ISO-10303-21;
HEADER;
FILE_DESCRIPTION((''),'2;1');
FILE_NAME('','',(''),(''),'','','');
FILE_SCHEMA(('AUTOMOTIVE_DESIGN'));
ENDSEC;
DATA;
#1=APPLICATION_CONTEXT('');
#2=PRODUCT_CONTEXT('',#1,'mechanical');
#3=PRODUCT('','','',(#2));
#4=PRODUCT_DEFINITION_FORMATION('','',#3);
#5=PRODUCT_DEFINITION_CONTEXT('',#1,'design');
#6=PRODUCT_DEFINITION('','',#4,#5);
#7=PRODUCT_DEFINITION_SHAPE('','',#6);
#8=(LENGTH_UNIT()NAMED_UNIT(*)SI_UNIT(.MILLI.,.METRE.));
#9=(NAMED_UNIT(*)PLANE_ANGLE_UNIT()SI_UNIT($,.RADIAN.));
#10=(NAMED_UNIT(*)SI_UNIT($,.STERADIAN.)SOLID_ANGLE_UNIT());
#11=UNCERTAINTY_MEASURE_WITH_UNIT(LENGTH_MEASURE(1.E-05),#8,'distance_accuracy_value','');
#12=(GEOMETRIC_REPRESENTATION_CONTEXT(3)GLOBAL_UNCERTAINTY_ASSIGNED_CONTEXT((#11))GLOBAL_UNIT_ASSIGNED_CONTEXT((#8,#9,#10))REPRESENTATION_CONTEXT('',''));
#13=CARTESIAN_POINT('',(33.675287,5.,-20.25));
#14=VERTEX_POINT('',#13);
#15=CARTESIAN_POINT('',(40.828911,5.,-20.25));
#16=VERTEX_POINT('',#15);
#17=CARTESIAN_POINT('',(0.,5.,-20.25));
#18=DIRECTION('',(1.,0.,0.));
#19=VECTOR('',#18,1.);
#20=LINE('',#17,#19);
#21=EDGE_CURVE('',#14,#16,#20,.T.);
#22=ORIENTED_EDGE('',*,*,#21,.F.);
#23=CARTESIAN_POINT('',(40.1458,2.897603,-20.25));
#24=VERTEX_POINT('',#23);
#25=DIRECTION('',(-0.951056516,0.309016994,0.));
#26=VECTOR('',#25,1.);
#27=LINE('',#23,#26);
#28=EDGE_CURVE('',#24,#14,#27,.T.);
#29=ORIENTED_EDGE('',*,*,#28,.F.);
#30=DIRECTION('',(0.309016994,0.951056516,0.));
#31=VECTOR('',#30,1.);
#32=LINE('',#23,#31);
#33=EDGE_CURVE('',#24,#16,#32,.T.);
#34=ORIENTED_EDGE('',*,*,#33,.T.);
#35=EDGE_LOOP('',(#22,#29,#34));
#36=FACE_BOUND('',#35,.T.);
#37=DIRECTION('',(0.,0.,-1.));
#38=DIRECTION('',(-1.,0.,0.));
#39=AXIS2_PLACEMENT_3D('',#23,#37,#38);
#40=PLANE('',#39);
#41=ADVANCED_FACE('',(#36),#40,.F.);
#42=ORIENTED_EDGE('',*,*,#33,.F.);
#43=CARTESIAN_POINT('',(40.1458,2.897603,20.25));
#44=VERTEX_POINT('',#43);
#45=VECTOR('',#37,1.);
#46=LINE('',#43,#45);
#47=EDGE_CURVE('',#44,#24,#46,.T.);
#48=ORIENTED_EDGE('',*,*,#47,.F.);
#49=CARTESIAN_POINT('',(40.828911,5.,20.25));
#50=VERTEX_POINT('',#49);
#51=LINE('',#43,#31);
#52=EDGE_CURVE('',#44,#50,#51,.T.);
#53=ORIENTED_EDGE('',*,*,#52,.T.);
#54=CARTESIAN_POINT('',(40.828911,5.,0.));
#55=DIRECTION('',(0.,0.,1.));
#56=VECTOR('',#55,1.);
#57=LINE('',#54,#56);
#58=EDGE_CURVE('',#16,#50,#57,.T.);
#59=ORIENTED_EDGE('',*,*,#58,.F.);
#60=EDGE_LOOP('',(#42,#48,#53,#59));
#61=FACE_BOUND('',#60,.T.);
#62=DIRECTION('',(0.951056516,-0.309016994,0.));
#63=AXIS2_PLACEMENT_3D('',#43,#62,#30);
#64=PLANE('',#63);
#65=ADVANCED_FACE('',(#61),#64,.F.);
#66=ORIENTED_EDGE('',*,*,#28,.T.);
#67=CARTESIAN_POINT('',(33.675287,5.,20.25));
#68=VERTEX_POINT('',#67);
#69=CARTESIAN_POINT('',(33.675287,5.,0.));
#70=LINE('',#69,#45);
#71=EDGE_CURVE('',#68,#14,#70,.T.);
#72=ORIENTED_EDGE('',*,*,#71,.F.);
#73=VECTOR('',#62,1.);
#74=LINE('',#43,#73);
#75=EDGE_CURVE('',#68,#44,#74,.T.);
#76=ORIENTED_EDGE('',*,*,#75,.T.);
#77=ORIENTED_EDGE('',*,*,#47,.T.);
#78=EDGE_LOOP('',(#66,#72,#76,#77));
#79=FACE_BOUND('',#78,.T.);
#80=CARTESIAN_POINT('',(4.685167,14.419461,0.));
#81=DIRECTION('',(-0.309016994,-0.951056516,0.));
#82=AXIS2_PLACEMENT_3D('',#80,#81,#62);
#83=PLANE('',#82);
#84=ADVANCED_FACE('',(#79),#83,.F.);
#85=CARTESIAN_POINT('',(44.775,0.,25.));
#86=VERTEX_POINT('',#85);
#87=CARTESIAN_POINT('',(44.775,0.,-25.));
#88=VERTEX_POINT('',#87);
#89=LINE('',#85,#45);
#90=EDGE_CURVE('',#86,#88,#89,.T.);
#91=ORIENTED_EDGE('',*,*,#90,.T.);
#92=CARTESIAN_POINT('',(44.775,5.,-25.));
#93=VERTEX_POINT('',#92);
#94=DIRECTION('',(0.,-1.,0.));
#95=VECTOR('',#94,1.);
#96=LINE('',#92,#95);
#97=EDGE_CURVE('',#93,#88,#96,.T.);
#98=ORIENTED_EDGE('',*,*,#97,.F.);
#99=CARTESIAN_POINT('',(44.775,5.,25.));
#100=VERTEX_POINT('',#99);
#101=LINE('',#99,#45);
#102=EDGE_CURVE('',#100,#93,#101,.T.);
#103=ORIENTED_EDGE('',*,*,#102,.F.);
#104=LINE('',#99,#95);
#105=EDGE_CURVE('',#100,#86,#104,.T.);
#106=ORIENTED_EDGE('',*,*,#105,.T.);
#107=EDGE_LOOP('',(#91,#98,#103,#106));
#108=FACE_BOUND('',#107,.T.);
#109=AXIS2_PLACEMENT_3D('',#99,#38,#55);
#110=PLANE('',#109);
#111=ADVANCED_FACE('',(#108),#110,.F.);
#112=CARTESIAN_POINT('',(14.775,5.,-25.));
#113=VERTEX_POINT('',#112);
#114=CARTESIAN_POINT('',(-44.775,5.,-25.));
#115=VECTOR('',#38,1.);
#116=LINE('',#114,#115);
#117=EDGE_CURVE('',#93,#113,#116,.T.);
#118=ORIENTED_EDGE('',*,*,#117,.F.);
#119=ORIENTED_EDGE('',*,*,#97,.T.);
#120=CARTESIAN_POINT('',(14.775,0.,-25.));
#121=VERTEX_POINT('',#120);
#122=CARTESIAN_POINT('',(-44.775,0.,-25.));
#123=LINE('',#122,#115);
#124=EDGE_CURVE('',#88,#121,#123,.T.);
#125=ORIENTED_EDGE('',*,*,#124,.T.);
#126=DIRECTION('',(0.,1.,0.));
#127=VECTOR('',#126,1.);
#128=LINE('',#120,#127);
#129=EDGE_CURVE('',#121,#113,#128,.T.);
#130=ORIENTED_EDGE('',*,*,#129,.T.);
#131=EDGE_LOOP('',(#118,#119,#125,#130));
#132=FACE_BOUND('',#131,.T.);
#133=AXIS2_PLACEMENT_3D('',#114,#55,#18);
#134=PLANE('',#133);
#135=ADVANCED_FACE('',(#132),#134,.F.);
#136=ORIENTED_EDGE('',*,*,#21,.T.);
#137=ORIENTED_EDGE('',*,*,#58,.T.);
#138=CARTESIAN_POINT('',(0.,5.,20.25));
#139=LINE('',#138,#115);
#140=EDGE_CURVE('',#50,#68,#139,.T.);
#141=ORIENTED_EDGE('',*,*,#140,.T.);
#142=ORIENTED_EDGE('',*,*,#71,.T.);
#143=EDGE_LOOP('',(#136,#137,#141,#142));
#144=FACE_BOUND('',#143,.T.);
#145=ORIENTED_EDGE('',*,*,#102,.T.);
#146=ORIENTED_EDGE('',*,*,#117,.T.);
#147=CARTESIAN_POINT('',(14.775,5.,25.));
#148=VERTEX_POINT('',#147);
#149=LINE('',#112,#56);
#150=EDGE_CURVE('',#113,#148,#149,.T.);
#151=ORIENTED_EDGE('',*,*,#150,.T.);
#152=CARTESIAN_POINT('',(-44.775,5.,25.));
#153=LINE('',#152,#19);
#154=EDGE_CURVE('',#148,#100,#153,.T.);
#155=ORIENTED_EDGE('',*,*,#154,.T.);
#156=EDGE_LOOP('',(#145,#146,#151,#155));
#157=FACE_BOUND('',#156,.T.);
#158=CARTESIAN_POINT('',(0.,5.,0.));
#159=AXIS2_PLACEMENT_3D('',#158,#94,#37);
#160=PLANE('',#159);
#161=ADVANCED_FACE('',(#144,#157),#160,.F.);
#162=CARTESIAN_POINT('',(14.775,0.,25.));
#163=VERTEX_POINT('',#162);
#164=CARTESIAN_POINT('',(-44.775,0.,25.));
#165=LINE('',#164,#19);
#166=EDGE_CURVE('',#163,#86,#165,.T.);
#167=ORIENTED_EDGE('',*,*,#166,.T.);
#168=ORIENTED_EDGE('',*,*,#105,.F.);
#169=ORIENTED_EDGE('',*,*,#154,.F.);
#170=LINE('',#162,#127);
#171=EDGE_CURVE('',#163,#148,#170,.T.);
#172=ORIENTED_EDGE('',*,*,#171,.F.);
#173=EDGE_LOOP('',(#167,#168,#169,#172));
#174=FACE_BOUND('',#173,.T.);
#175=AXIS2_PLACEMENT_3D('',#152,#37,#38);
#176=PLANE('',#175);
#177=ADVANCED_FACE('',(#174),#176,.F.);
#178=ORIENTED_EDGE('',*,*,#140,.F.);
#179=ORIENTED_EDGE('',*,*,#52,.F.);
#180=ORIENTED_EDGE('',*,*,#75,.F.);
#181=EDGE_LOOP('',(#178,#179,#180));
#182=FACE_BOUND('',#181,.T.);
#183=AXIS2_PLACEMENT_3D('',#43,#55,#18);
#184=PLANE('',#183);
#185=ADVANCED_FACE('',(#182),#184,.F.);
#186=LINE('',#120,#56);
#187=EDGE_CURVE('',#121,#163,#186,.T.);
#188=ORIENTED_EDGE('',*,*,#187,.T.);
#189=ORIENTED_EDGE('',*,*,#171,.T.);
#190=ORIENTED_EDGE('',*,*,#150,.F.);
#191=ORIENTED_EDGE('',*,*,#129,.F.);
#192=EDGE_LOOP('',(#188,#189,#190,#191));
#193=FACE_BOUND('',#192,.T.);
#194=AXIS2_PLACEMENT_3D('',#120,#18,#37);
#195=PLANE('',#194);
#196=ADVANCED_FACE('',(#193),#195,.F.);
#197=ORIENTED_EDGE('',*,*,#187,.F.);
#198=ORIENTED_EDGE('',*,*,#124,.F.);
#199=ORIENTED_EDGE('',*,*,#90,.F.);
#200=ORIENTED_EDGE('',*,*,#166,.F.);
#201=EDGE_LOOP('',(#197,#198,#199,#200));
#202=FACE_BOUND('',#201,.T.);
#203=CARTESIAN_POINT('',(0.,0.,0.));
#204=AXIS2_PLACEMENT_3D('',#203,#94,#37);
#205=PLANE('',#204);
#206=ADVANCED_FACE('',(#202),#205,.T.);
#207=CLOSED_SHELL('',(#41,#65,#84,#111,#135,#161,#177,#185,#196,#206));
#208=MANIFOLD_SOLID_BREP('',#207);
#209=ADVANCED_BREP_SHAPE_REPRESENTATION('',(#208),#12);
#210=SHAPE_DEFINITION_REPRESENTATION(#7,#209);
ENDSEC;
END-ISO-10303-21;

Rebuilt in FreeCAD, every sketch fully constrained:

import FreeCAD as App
import Part
import Sketcher
Q = App.Units.Quantity

doc = App.newDocument("Part")
body = doc.addObject("PartDesign::Body", "Body")

# Sketch on XZ plane
sketch1 = body.newObject("Sketcher::SketchObject", "Sketch")
sketch1.AttachmentSupport = (doc.getObject("XZ_Plane"), [""])
sketch1.MapMode = "FlatFace"
sketch1.addGeometry([
    Part.LineSegment(App.Vector(-44.775, -25, 0), App.Vector(-44.775, 25, 0)),
    Part.LineSegment(App.Vector(-44.775, 25, 0), App.Vector(44.775, 25, 0)),
    Part.LineSegment(App.Vector(44.775, 25, 0), App.Vector(44.775, -25, 0)),
    Part.LineSegment(App.Vector(44.775, -25, 0), App.Vector(-44.775, -25, 0)),
], False)
sketch1.addConstraint([
    Sketcher.Constraint("Coincident", 0, 2, 1, 1),
    Sketcher.Constraint("Coincident", 1, 2, 2, 1),
    Sketcher.Constraint("Coincident", 2, 2, 3, 1),
    Sketcher.Constraint("Coincident", 3, 2, 0, 1),
    Sketcher.Constraint("Vertical", 0),
    Sketcher.Constraint("Horizontal", 1),
    Sketcher.Constraint("Vertical", 2),
    Sketcher.Constraint("Horizontal", 3),
    Sketcher.Constraint("Symmetric", 0, 2, 2, 2, -1, 1),
    Sketcher.Constraint("DistanceY", 0, 1, 0, 2, Q("50 mm")),
    Sketcher.Constraint("DistanceX", 1, 1, 1, 2, Q("89.55 mm")),
])
pad1 = body.newObject("PartDesign::Pad", "Pad")
pad1.Profile = sketch1
pad1.Length = 5
pad1.Reversed = True

# Sketch on XZ plane
sketch2 = body.newObject("Sketcher::SketchObject", "Sketch001")
sketch2.AttachmentSupport = (doc.getObject("XZ_Plane"), [""])
sketch2.MapMode = "FlatFace"
sketch2.AttachmentOffset = App.Placement(App.Vector(0, 0, -5), App.Rotation())
sketch2.addGeometry([
    Part.LineSegment(App.Vector(-7.375, -5.2, 0), App.Vector(-39.775, -5.2, 0)),  # 0
    Part.LineSegment(App.Vector(-39.775, -5.2, 0), App.Vector(-39.775, -4, 0)),  # 1
    Part.LineSegment(App.Vector(-39.775, -4, 0), App.Vector(-44.775, -4, 0)),  # 2
    Part.LineSegment(App.Vector(-44.775, -4, 0), App.Vector(-44.775, 4, 0)),  # 3
    Part.LineSegment(App.Vector(-44.775, 4, 0), App.Vector(-39.775, 4, 0)),  # 4
    Part.LineSegment(App.Vector(-39.775, 4, 0), App.Vector(-39.775, 5.2, 0)),  # 5
    Part.LineSegment(App.Vector(-39.775, 5.2, 0), App.Vector(-7.375, 5.2, 0)),  # 6
    Part.LineSegment(App.Vector(-7.375, 5.2, 0), App.Vector(-7.375, -5.2, 0)),  # 7
], False)
sketch2.addConstraint([
    Sketcher.Constraint("Coincident", 0, 2, 1, 1),
    Sketcher.Constraint("Coincident", 1, 2, 2, 1),
    Sketcher.Constraint("Coincident", 2, 2, 3, 1),
    Sketcher.Constraint("Coincident", 3, 2, 4, 1),
    Sketcher.Constraint("Coincident", 4, 2, 5, 1),
    Sketcher.Constraint("Coincident", 5, 2, 6, 1),
    Sketcher.Constraint("Coincident", 6, 2, 7, 1),
    Sketcher.Constraint("Coincident", 7, 2, 0, 1),
    Sketcher.Constraint("Horizontal", 0),
    Sketcher.Constraint("Vertical", 1),
    Sketcher.Constraint("Horizontal", 2),
    Sketcher.Constraint("Vertical", 3),
    Sketcher.Constraint("Horizontal", 4),
    Sketcher.Constraint("Vertical", 5),
    Sketcher.Constraint("Horizontal", 6),
    Sketcher.Constraint("Vertical", 7),
    Sketcher.Constraint("Symmetric", 1, 2, 4, 2, -1),
    Sketcher.Constraint("Equal", 1, 5),
    Sketcher.Constraint("DistanceX", 2, 2, 2, 1, Q("5 mm")),
    Sketcher.Constraint("DistanceY", 3, 1, 3, 2, Q("8 mm")),
    Sketcher.Constraint("DistanceX", 0, 2, 0, 1, Q("32.4 mm")),
    Sketcher.Constraint("DistanceY", 1, 1, 1, 2, Q("1.2 mm")),
    Sketcher.Constraint("DistanceX", 0, 2, -1, 1, Q("39.775 mm")),
])
pocket1 = body.newObject("PartDesign::Pocket", "Pocket")
pocket1.Profile = sketch2
pocket1.Length = 4
pocket1.Reversed = True

# Sketch on an angled plane
sketch3 = body.newObject("Sketcher::SketchObject", "Sketch002")
sketch3.Placement = App.Placement(App.Vector(5.745095, 17.681585, 0), App.Rotation(App.Vector(0, 0, -1), App.Vector(-0.951056516, 0.309016994, 0), App.Vector(0.309016994, 0.951056516, 0), "ZXY"))
sketch3.addGeometry([
    Part.LineSegment(App.Vector(-20.25, 55.714483, 0), App.Vector(-20.25, -37.285516, 0)),
    Part.LineSegment(App.Vector(-20.25, -37.285516, 0), App.Vector(20.25, -37.285516, 0)),
    Part.LineSegment(App.Vector(20.25, -37.285516, 0), App.Vector(20.25, 55.714483, 0)),
    Part.LineSegment(App.Vector(20.25, 55.714483, 0), App.Vector(-20.25, 55.714483, 0)),
], False)
sketch3.addConstraint([
    Sketcher.Constraint("Coincident", 0, 2, 1, 1),
    Sketcher.Constraint("Coincident", 1, 2, 2, 1),
    Sketcher.Constraint("Coincident", 2, 2, 3, 1),
    Sketcher.Constraint("Coincident", 3, 2, 0, 1),
    Sketcher.Constraint("Vertical", 0),
    Sketcher.Constraint("Horizontal", 1),
    Sketcher.Constraint("Vertical", 2),
    Sketcher.Constraint("Horizontal", 3),
    Sketcher.Constraint("DistanceY", 0, 2, 0, 1, Q("93 mm")),
    Sketcher.Constraint("DistanceX", 1, 1, 1, 2, Q("40.5 mm")),
    Sketcher.Constraint("DistanceX", 0, 2, -1, 1, Q("20.25 mm")),
    Sketcher.Constraint("DistanceY", 0, 2, -1, 1, Q("37.285516 mm")),
])
pocket2 = body.newObject("PartDesign::Pocket", "Pocket001")
pocket2.Profile = sketch3
pocket2.Length = 3.43

# Sketch on XY plane
sketch4 = body.newObject("Sketcher::SketchObject", "Sketch003")
sketch4.AttachmentSupport = (doc.getObject("XY_Plane"), [""])
sketch4.MapMode = "FlatFace"
sketch4.AttachmentOffset = App.Placement(App.Vector(0, 0, 25), App.Rotation())
sketch4.addGeometry([
    Part.LineSegment(App.Vector(-44.775, 5, 0), App.Vector(-44.775, 0, 0)),
    Part.LineSegment(App.Vector(-44.775, 0, 0), App.Vector(14.775, 0, 0)),
    Part.LineSegment(App.Vector(14.775, 0, 0), App.Vector(14.775, 5, 0)),
    Part.LineSegment(App.Vector(14.775, 5, 0), App.Vector(-44.775, 5, 0)),
], False)
sketch4.addConstraint([
    Sketcher.Constraint("Coincident", 0, 2, 1, 1),
    Sketcher.Constraint("Coincident", 1, 2, 2, 1),
    Sketcher.Constraint("Coincident", 2, 2, 3, 1),
    Sketcher.Constraint("Coincident", 3, 2, 0, 1),
    Sketcher.Constraint("Vertical", 0),
    Sketcher.Constraint("Horizontal", 1),
    Sketcher.Constraint("Vertical", 2),
    Sketcher.Constraint("Horizontal", 3),
    Sketcher.Constraint("PointOnObject", 0, 2, -1),
    Sketcher.Constraint("DistanceY", 0, 2, 0, 1, Q("5 mm")),
    Sketcher.Constraint("DistanceX", 1, 1, 1, 2, Q("59.55 mm")),
    Sketcher.Constraint("DistanceX", 0, 2, -1, 1, Q("44.775 mm")),
])
pocket3 = body.newObject("PartDesign::Pocket", "Pocket002")
pocket3.Profile = sketch4
pocket3.Type = "ThroughAll"

doc.recompute()
